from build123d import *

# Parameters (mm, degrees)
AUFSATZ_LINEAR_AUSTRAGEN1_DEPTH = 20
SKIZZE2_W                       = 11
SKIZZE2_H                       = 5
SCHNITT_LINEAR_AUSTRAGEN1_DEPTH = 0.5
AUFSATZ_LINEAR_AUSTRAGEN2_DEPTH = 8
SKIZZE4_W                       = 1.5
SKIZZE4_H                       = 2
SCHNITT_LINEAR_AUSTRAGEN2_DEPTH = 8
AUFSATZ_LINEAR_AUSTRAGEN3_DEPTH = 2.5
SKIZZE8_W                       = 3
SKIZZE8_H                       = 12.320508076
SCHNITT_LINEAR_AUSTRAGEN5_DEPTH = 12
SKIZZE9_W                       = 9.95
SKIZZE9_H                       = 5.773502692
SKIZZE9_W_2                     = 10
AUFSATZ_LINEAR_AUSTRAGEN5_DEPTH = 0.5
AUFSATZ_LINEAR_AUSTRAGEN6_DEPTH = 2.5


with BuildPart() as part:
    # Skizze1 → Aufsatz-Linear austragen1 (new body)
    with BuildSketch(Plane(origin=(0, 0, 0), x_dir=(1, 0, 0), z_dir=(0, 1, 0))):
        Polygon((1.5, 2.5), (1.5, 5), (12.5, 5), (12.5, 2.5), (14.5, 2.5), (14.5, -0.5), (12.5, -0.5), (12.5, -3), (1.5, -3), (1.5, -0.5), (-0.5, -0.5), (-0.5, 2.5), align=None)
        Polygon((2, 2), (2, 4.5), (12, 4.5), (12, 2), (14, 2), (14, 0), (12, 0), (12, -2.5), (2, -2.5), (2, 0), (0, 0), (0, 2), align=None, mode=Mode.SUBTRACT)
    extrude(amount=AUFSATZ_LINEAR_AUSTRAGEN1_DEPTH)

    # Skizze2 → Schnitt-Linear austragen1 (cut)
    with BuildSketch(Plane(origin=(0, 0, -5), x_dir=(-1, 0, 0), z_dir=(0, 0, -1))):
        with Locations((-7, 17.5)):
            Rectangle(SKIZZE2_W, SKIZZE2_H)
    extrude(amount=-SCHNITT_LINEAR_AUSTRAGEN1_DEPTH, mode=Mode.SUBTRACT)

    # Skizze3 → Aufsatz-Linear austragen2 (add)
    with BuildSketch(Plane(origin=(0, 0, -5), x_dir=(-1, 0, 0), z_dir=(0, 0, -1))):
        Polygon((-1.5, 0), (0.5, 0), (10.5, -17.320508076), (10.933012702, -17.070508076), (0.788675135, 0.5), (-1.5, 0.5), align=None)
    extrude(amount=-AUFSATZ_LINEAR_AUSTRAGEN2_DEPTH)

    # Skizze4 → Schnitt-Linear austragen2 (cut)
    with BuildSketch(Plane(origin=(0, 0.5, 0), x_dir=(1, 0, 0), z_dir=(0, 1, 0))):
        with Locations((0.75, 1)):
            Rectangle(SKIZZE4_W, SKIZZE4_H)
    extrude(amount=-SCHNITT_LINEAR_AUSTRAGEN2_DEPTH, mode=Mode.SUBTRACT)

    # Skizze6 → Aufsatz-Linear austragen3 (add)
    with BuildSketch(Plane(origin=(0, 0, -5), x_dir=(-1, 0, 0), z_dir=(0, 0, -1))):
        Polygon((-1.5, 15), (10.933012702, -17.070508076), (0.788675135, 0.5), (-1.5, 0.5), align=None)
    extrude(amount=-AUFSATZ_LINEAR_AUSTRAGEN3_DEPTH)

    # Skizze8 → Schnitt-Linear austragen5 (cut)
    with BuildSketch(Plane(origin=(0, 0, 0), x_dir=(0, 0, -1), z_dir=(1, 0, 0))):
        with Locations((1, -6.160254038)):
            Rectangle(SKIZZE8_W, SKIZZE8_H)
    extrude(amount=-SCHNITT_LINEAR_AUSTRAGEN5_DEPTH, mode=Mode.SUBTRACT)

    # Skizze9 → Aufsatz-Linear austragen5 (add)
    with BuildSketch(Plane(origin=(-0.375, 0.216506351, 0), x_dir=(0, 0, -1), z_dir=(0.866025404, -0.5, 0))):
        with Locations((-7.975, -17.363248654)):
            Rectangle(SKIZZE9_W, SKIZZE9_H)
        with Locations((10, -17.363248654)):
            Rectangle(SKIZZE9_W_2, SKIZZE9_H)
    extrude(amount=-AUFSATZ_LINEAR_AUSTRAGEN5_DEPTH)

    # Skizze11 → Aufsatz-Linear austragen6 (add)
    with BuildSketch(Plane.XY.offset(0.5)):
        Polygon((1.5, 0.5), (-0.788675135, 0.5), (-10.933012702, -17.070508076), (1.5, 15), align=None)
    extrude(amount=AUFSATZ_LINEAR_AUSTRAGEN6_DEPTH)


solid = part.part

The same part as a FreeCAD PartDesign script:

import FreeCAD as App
import Part
import Sketcher
from FreeCAD import Vector
Q = App.Units.Quantity

doc = App.newDocument("Part")
params = doc.addObject("Spreadsheet::Sheet", "Params")
for row, (alias, value) in enumerate([
    ("sketch1_width", "2 mm"),
    ("sketch1_width2", "11 mm"),
    ("sketch1_width3", "10 mm"),
    ("sketch1_height", "3 mm"),
    ("sketch1_height2", "2.5 mm"),
    ("pad1_length", "20 mm"),
    ("sketch2_width", "11 mm"),
    ("sketch2_height", "5 mm"),
    ("pocket1_length", "0.5 mm"),
    ("sketch3_width", "2 mm"),
    ("sketch3_length", "20 mm"),
    ("sketch3_height", "0.5 mm"),
    ("sketch3_length2", "0.5 mm"),
    ("pad2_length", "8 mm"),
    ("sketch4_height", "2 mm"),
    ("sketch4_width", "1.5 mm"),
    ("pocket2_length", "8 mm"),
    ("sketch5_height", "14.5 mm"),
    ("pad3_length", "2.5 mm"),
    ("sketch6_height", "3 mm"),
    ("pocket3_length", "12 mm"),
    ("sketch7_width", "10 mm"),
    ("sketch7_width2", "9.95 mm"),
    ("pad4_length", "0.5 mm"),
    ("sketch8_height", "14.5 mm"),
    ("pad5_length", "2.5 mm"),
], start=1):
    params.set(f"A{row}", alias)
    params.set(f"B{row}", "=" + value)
    params.setAlias(f"B{row}", alias)

body = doc.addObject("PartDesign::Body", "Body")

# Sketch on XZ plane
sketch1 = doc.addObject("Sketcher::SketchObject", "Sketch")
body.addObject(sketch1)
sketch1.AttachmentSupport = (doc.XZ_Plane, [""])
sketch1.MapMode = "FlatFace"
sketch1.addGeometry([
    Part.LineSegment(Vector(1.5, -5, 0), Vector(1.5, -2.5, 0)),  # 0
    Part.LineSegment(Vector(1.5, -2.5, 0), Vector(-0.5, -2.5, 0)),  # 1
    Part.LineSegment(Vector(-0.5, -2.5, 0), Vector(-0.5, 0.5, 0)),  # 2
    Part.LineSegment(Vector(-0.5, 0.5, 0), Vector(1.5, 0.5, 0)),  # 3
    Part.LineSegment(Vector(1.5, 0.5, 0), Vector(1.5, 3, 0)),  # 4
    Part.LineSegment(Vector(1.5, 3, 0), Vector(12.5, 3, 0)),  # 5
    Part.LineSegment(Vector(12.5, 3, 0), Vector(12.5, 0.5, 0)),  # 6
    Part.LineSegment(Vector(12.5, 0.5, 0), Vector(14.5, 0.5, 0)),  # 7
    Part.LineSegment(Vector(14.5, 0.5, 0), Vector(14.5, -2.5, 0)),  # 8
    Part.LineSegment(Vector(14.5, -2.5, 0), Vector(12.5, -2.5, 0)),  # 9
    Part.LineSegment(Vector(12.5, -2.5, 0), Vector(12.5, -5, 0)),  # 10
    Part.LineSegment(Vector(12.5, -5, 0), Vector(1.5, -5, 0)),  # 11
    Part.LineSegment(Vector(2, -2, 0), Vector(2, -4.5, 0)),  # 12
    Part.LineSegment(Vector(2, -4.5, 0), Vector(12, -4.5, 0)),  # 13
    Part.LineSegment(Vector(12, -4.5, 0), Vector(12, -2, 0)),  # 14
    Part.LineSegment(Vector(12, -2, 0), Vector(14, -2, 0)),  # 15
    Part.LineSegment(Vector(14, -2, 0), Vector(14, 0, 0)),  # 16
    Part.LineSegment(Vector(14, 0, 0), Vector(12, 0, 0)),  # 17
    Part.LineSegment(Vector(12, 0, 0), Vector(12, 2.5, 0)),  # 18
    Part.LineSegment(Vector(12, 2.5, 0), Vector(2, 2.5, 0)),  # 19
    Part.LineSegment(Vector(2, 2.5, 0), Vector(2, 0, 0)),  # 20
    Part.LineSegment(Vector(2, 0, 0), Vector(0, 0, 0)),  # 21
    Part.LineSegment(Vector(0, 0, 0), Vector(0, -2, 0)),  # 22
    Part.LineSegment(Vector(0, -2, 0), Vector(2, -2, 0)),  # 23
], False)
sketch1.addConstraint([
    Sketcher.Constraint("Coincident", 0, 2, 1, 1),
    Sketcher.Constraint("Coincident", 1, 2, 2, 1),
    Sketcher.Constraint("Coincident", 2, 2, 3, 1),
    Sketcher.Constraint("Coincident", 3, 2, 4, 1),
    Sketcher.Constraint("Coincident", 4, 2, 5, 1),
    Sketcher.Constraint("Coincident", 5, 2, 6, 1),
    Sketcher.Constraint("Coincident", 6, 2, 7, 1),
    Sketcher.Constraint("Coincident", 7, 2, 8, 1),
    Sketcher.Constraint("Coincident", 8, 2, 9, 1),
    Sketcher.Constraint("Coincident", 9, 2, 10, 1),
    Sketcher.Constraint("Coincident", 10, 2, 11, 1),
    Sketcher.Constraint("Coincident", 11, 2, 0, 1),
    Sketcher.Constraint("Coincident", 12, 2, 13, 1),
    Sketcher.Constraint("Coincident", 13, 2, 14, 1),
    Sketcher.Constraint("Coincident", 14, 2, 15, 1),
    Sketcher.Constraint("Coincident", 15, 2, 16, 1),
    Sketcher.Constraint("Coincident", 16, 2, 17, 1),
    Sketcher.Constraint("Coincident", 17, 2, 18, 1),
    Sketcher.Constraint("Coincident", 18, 2, 19, 1),
    Sketcher.Constraint("Coincident", 19, 2, 20, 1),
    Sketcher.Constraint("Coincident", 20, 2, 21, 1),
    Sketcher.Constraint("Coincident", 21, 2, 22, 1),
    Sketcher.Constraint("Coincident", 22, 2, 23, 1),
    Sketcher.Constraint("Coincident", 23, 2, 12, 1),
    Sketcher.Constraint("Vertical", 0),
    Sketcher.Constraint("Horizontal", 1),
    Sketcher.Constraint("Vertical", 2),
    Sketcher.Constraint("Horizontal", 3),
    Sketcher.Constraint("Vertical", 4),
    Sketcher.Constraint("Horizontal", 5),
    Sketcher.Constraint("Vertical", 6),
    Sketcher.Constraint("Horizontal", 7),
    Sketcher.Constraint("Vertical", 8),
    Sketcher.Constraint("Horizontal", 9),
    Sketcher.Constraint("Vertical", 10),
    Sketcher.Constraint("Horizontal", 11),
    Sketcher.Constraint("Vertical", 12),
    Sketcher.Constraint("Horizontal", 13),
    Sketcher.Constraint("Vertical", 14),
    Sketcher.Constraint("Horizontal", 15),
    Sketcher.Constraint("Vertical", 16),
    Sketcher.Constraint("Horizontal", 17),
    Sketcher.Constraint("Vertical", 18),
    Sketcher.Constraint("Horizontal", 19),
    Sketcher.Constraint("Vertical", 20),
    Sketcher.Constraint("Horizontal", 21),
    Sketcher.Constraint("Vertical", 22),
    Sketcher.Constraint("Horizontal", 23),
    Sketcher.Constraint("Coincident", 21, 2, -1, 1),
    Sketcher.Constraint("PointOnObject", 16, 2, -1),
    Sketcher.Constraint("Horizontal", 3, 2, 6, 2),
    Sketcher.Constraint("Horizontal", 1, 2, 8, 2),
    Sketcher.Constraint("Horizontal", 15, 2, 22, 2),
    Sketcher.Constraint("Vertical", 0, 2, 3, 2),
    Sketcher.Constraint("Vertical", 6, 2, 9, 2),
    Sketcher.Constraint("Vertical", 14, 2, 17, 2),
    Sketcher.Constraint("Vertical", 12, 2, 19, 2),
    Sketcher.Constraint("Equal", 3, 7),
    Sketcher.Constraint("Equal", 9, 15),
    Sketcher.Constraint("Equal", 17, 21),
    Sketcher.Constraint("Equal", 0, 4),
    Sketcher.Constraint("Equal", 10, 12),
    Sketcher.Constraint("Equal", 23, 16),
    Sketcher.Constraint("Equal", 14, 18),
    Sketcher.Constraint("DistanceX", 1, 2, 1, 1, Q("2 mm")),
    Sketcher.Constraint("DistanceX", 5, 1, 5, 2, Q("11 mm")),
    Sketcher.Constraint("DistanceX", 13, 1, 13, 2, Q("10 mm")),
    Sketcher.Constraint("DistanceY", 2, 1, 2, 2, Q("3 mm")),
    Sketcher.Constraint("DistanceY", 0, 1, 0, 2, Q("2.5 mm")),
    Sketcher.Constraint("DistanceY", -1, 1, 4, 2, Q("3 mm")),
    Sketcher.Constraint("DistanceX", -1, 1, 0, 2, Q("1.5 mm")),
])
sketch1.setExpression("Constraints[64]", "Params.sketch1_width")
sketch1.setExpression("Constraints[65]", "Params.sketch1_width2")
sketch1.setExpression("Constraints[66]", "Params.sketch1_width3")
sketch1.setExpression("Constraints[67]", "Params.sketch1_height")
sketch1.setExpression("Constraints[68]", "Params.sketch1_height2")
pad1 = doc.addObject("PartDesign::Pad", "Pad")
body.addObject(pad1)
pad1.Profile = sketch1
pad1.setExpression("Length", "Params.pad1_length")
pad1.Reversed = True

# Sketch on XY plane
sketch2 = doc.addObject("Sketcher::SketchObject", "Sketch001")
body.addObject(sketch2)
sketch2.AttachmentSupport = (doc.XY_Plane, [""])
sketch2.MapMode = "FlatFace"
sketch2.AttachmentOffset = App.Placement(Vector(0, 0, -5), App.Rotation())
sketch2.addGeometry([
    Part.LineSegment(Vector(12, 20, 0), Vector(12, 15, 0)),
    Part.LineSegment(Vector(12, 15, 0), Vector(2, 15, 0)),
    Part.LineSegment(Vector(2, 15, 0), Vector(2, 20, 0)),
    Part.LineSegment(Vector(2, 20, 0), Vector(12, 20, 0)),
], False)
sketch2.addConstraint([
    Sketcher.Constraint("Coincident", 0, 2, 1, 1),
    Sketcher.Constraint("Coincident", 1, 2, 2, 1),
    Sketcher.Constraint("Coincident", 2, 2, 3, 1),
    Sketcher.Constraint("Coincident", 3, 2, 0, 1),
    Sketcher.Constraint("Vertical", 0),
    Sketcher.Constraint("Horizontal", 1),
    Sketcher.Constraint("Vertical", 2),
    Sketcher.Constraint("Horizontal", 3),
    Sketcher.Constraint("DistanceX", 1, 2, 1, 1, Q("11 mm")),
    Sketcher.Constraint("DistanceY", 0, 2, 0, 1, Q("5 mm")),
    Sketcher.Constraint("DistanceY", -1, 1, 0, 2, Q("15 mm")),
    Sketcher.Constraint("DistanceX", -1, 1, 0, 2, Q("12.5 mm")),
])
sketch2.setExpression("Constraints[8]", "Params.sketch2_width")
sketch2.setExpression("Constraints[9]", "Params.sketch2_height")
pocket1 = doc.addObject("PartDesign::Pocket", "Pocket")
body.addObject(pocket1)
pocket1.Profile = sketch2
pocket1.setExpression("Length", "Params.pocket1_length")
pocket1.Reversed = True

# Sketch on XY plane
sketch3 = doc.addObject("Sketcher::SketchObject", "Sketch002")
body.addObject(sketch3)
sketch3.AttachmentSupport = (doc.XY_Plane, [""])
sketch3.MapMode = "FlatFace"
sketch3.AttachmentOffset = App.Placement(Vector(0, 0, -5), App.Rotation())
sketch3.addGeometry([
    Part.LineSegment(Vector(1.5, 0, 0), Vector(-0.5, 0, 0)),  # 0
    Part.LineSegment(Vector(-0.5, 0, 0), Vector(-10.5, -17.3, 0)),  # 1
    Part.LineSegment(Vector(-10.5, -17.3, 0), Vector(-10.9, -17.1, 0)),  # 2
    Part.LineSegment(Vector(-10.9, -17.1, 0), Vector(-0.8, 0.5, 0)),  # 3
    Part.LineSegment(Vector(-0.8, 0.5, 0), Vector(1.5, 0.5, 0)),  # 4
    Part.LineSegment(Vector(1.5, 0.5, 0), Vector(1.5, 0, 0)),  # 5
], False)
sketch3.addConstraint([
    Sketcher.Constraint("Coincident", 0, 2, 1, 1),
    Sketcher.Constraint("Coincident", 1, 2, 2, 1),
    Sketcher.Constraint("Coincident", 2, 2, 3, 1),
    Sketcher.Constraint("Coincident", 3, 2, 4, 1),
    Sketcher.Constraint("Coincident", 4, 2, 5, 1),
    Sketcher.Constraint("Coincident", 5, 2, 0, 1),
    Sketcher.Constraint("Horizontal", 0),
    Sketcher.Constraint("Horizontal", 4),
    Sketcher.Constraint("Vertical", 5),
    Sketcher.Constraint("PointOnObject", 0, 2, -1),
    Sketcher.Constraint("Perpendicular", 1, 2),
    Sketcher.Constraint("Perpendicular", 2, 3),
    Sketcher.Constraint("DistanceX", 0, 2, 0, 1, Q("2 mm")),
    Sketcher.Constraint("Angle", 1, Q("-120 deg")),
    Sketcher.Constraint("Distance", 1, Q("20 mm")),
    Sketcher.Constraint("DistanceY", 5, 2, 5, 1, Q("0.5 mm")),
    Sketcher.Constraint("Distance", 2, Q("0.5 mm")),
    Sketcher.Constraint("DistanceX", 0, 2, -1, 1, Q("0.5 mm")),
])
sketch3.setExpression("Constraints[12]", "Params.sketch3_width")
sketch3.setExpression("Constraints[14]", "Params.sketch3_length")
sketch3.setExpression("Constraints[15]", "Params.sketch3_height")
sketch3.setExpression("Constraints[16]", "Params.sketch3_length2")
pad2 = doc.addObject("PartDesign::Pad", "Pad001")
body.addObject(pad2)
pad2.Profile = sketch3
pad2.setExpression("Length", "Params.pad2_length")

# Sketch on XZ plane
sketch4 = doc.addObject("Sketcher::SketchObject", "Sketch003")
body.addObject(sketch4)
sketch4.AttachmentSupport = (doc.XZ_Plane, [""])
sketch4.MapMode = "FlatFace"
sketch4.AttachmentOffset = App.Placement(Vector(0, 0, -0.5), App.Rotation())
sketch4.addGeometry([
    Part.LineSegment(Vector(0, -2, 0), Vector(0, 0, 0)),
    Part.LineSegment(Vector(0, 0, 0), Vector(1.5, 0, 0)),
    Part.LineSegment(Vector(1.5, 0, 0), Vector(1.5, -2, 0)),
    Part.LineSegment(Vector(1.5, -2, 0), Vector(0, -2, 0)),
], False)
sketch4.addConstraint([
    Sketcher.Constraint("Coincident", 0, 2, 1, 1),
    Sketcher.Constraint("Coincident", 1, 2, 2, 1),
    Sketcher.Constraint("Coincident", 2, 2, 3, 1),
    Sketcher.Constraint("Coincident", 3, 2, 0, 1),
    Sketcher.Constraint("Vertical", 0),
    Sketcher.Constraint("Horizontal", 1),
    Sketcher.Constraint("Vertical", 2),
    Sketcher.Constraint("Horizontal", 3),
    Sketcher.Constraint("Coincident", 0, 2, -1, 1),
    Sketcher.Constraint("DistanceY", 0, 1, 0, 2, Q("2 mm")),
    Sketcher.Constraint("DistanceX", 1, 1, 1, 2, Q("1.5 mm")),
])
sketch4.setExpression("Constraints[9]", "Params.sketch4_height")
sketch4.setExpression("Constraints[10]", "Params.sketch4_width")
pocket2 = doc.addObject("PartDesign::Pocket", "Pocket001")
body.addObject(pocket2)
pocket2.Profile = sketch4
pocket2.setExpression("Length", "Params.pocket2_length")
pocket2.Reversed = True

# Sketch on XY plane
sketch5 = doc.addObject("Sketcher::SketchObject", "Sketch004")
body.addObject(sketch5)
sketch5.AttachmentSupport = (doc.XY_Plane, [""])
sketch5.MapMode = "FlatFace"
sketch5.AttachmentOffset = App.Placement(Vector(0, 0, -5), App.Rotation())
sketch5.addGeometry([
    Part.LineSegment(Vector(-10.9, -17.1, 0), Vector(1.5, 15, 0)),
    Part.LineSegment(Vector(1.5, 15, 0), Vector(1.5, 0.5, 0)),
    Part.LineSegment(Vector(1.5, 0.5, 0), Vector(-0.8, 0.5, 0)),
    Part.LineSegment(Vector(-0.8, 0.5, 0), Vector(-10.9, -17.1, 0)),
], False)
sketch5.addConstraint([
    Sketcher.Constraint("Coincident", 0, 2, 1, 1),
    Sketcher.Constraint("Coincident", 1, 2, 2, 1),
    Sketcher.Constraint("Coincident", 2, 2, 3, 1),
    Sketcher.Constraint("Coincident", 3, 2, 0, 1),
    Sketcher.Constraint("Vertical", 1),
    Sketcher.Constraint("Horizontal", 2),
    Sketcher.Constraint("Angle", 3, Q("-120 deg")),
    Sketcher.Constraint("DistanceY", 1, 2, 1, 1, Q("14.5 mm")),
    Sketcher.Constraint("DistanceY", -1, 1, 0, 2, Q("15 mm")),
    Sketcher.Constraint("DistanceX", -1, 1, 0, 2, Q("1.5 mm")),
    Sketcher.Constraint("Distance", 0, Q("34.396181 mm")),
    Sketcher.Constraint("DistanceX", 2, 2, 2, 1, Q("2.288675 mm")),
])
sketch5.setExpression("Constraints[7]", "Params.sketch5_height")
pad3 = doc.addObject("PartDesign::Pad", "Pad002")
body.addObject(pad3)
pad3.Profile = sketch5
pad3.setExpression("Length", "Params.pad3_length")

# Sketch on YZ plane
sketch6 = doc.addObject("Sketcher::SketchObject", "Sketch005")
body.addObject(sketch6)
sketch6.AttachmentSupport = (doc.YZ_Plane, [""])
sketch6.MapMode = "FlatFace"
sketch6.addGeometry([
    Part.LineSegment(Vector(0, 0.5, 0), Vector(-12.3, 0.5, 0)),
    Part.LineSegment(Vector(-12.3, 0.5, 0), Vector(-12.3, -2.5, 0)),
    Part.LineSegment(Vector(-12.3, -2.5, 0), Vector(0, -2.5, 0)),
    Part.LineSegment(Vector(0, -2.5, 0), Vector(0, 0.5, 0)),
], False)
sketch6.addConstraint([
    Sketcher.Constraint("Coincident", 0, 2, 1, 1),
    Sketcher.Constraint("Coincident", 1, 2, 2, 1),
    Sketcher.Constraint("Coincident", 2, 2, 3, 1),
    Sketcher.Constraint("Coincident", 3, 2, 0, 1),
    Sketcher.Constraint("Horizontal", 0),
    Sketcher.Constraint("Vertical", 1),
    Sketcher.Constraint("Horizontal", 2),
    Sketcher.Constraint("Vertical", 3),
    Sketcher.Constraint("PointOnObject", 2, 2, -2),
    Sketcher.Constraint("DistanceY", 1, 2, 1, 1, Q("3 mm")),
    Sketcher.Constraint("DistanceY", -1, 1, 0, 2, Q("0.5 mm")),
    Sketcher.Constraint("DistanceX", 0, 2, 0, 1, Q("12.320508 mm")),
])
sketch6.setExpression("Constraints[9]", "Params.sketch6_height")
pocket3 = doc.addObject("PartDesign::Pocket", "Pocket002")
body.addObject(pocket3)
pocket3.Profile = sketch6
pocket3.setExpression("Length", "Params.pocket3_length")

# Sketch on an angled plane
sketch7 = doc.addObject("Sketcher::SketchObject", "Sketch006")
body.addObject(sketch7)
sketch7.Placement = App.Placement(Vector(-0.375, 0.216506, 0), App.Rotation(Vector(0, 0, -1), Vector(0.5, 0.866025404, 0), Vector(0.866025404, -0.5, 0), "ZXY"))
sketch7.addGeometry([
    Part.LineSegment(Vector(-13, -14, 0), Vector(-13, -20, 0)),  # 0
    Part.LineSegment(Vector(-13, -20, 0), Vector(-3, -20, 0)),  # 1
    Part.LineSegment(Vector(-3, -20, 0), Vector(-3, -14, 0)),  # 2
    Part.LineSegment(Vector(-3, -14, 0), Vector(-13, -14, 0)),  # 3
    Part.LineSegment(Vector(5, -14, 0), Vector(5, -20, 0)),  # 4
    Part.LineSegment(Vector(5, -20, 0), Vector(15, -20, 0)),  # 5
    Part.LineSegment(Vector(15, -20, 0), Vector(15, -14, 0)),  # 6
    Part.LineSegment(Vector(15, -14, 0), Vector(5, -14, 0)),  # 7
], False)
sketch7.addConstraint([
    Sketcher.Constraint("Coincident", 0, 2, 1, 1),
    Sketcher.Constraint("Coincident", 1, 2, 2, 1),
    Sketcher.Constraint("Coincident", 2, 2, 3, 1),
    Sketcher.Constraint("Coincident", 3, 2, 0, 1),
    Sketcher.Constraint("Coincident", 4, 2, 5, 1),
    Sketcher.Constraint("Coincident", 5, 2, 6, 1),
    Sketcher.Constraint("Coincident", 6, 2, 7, 1),
    Sketcher.Constraint("Coincident", 7, 2, 4, 1),
    Sketcher.Constraint("Vertical", 0),
    Sketcher.Constraint("Horizontal", 1),
    Sketcher.Constraint("Vertical", 2),
    Sketcher.Constraint("Horizontal", 3),
    Sketcher.Constraint("Vertical", 4),
    Sketcher.Constraint("Horizontal", 5),
    Sketcher.Constraint("Vertical", 6),
    Sketcher.Constraint("Horizontal", 7),
    Sketcher.Constraint("Horizontal", 1, 2, 4, 2),
    Sketcher.Constraint("Horizontal", 3, 2, 6, 2),
    Sketcher.Constraint("DistanceX", 5, 1, 5, 2, Q("10 mm")),
    Sketcher.Constraint("DistanceX", 1, 2, -1, 1, Q("3 mm")),
    Sketcher.Constraint("DistanceX", -1, 1, 4, 2, Q("5 mm")),
    Sketcher.Constraint("DistanceX", 1, 1, 1, 2, Q("9.95 mm")),
    Sketcher.Constraint("DistanceY", 0, 2, -1, 1, Q("20.25 mm")),
    Sketcher.Constraint("DistanceY", 0, 2, 0, 1, Q("5.773503 mm")),
])
sketch7.setExpression("Constraints[18]", "Params.sketch7_width")
sketch7.setExpression("Constraints[21]", "Params.sketch7_width2")
pad4 = doc.addObject("PartDesign::Pad", "Pad003")
body.addObject(pad4)
pad4.Profile = sketch7
pad4.setExpression("Length", "Params.pad4_length")
pad4.Reversed = True

# Sketch on XY plane
sketch8 = doc.addObject("Sketcher::SketchObject", "Sketch007")
body.addObject(sketch8)
sketch8.AttachmentSupport = (doc.XY_Plane, [""])
sketch8.MapMode = "FlatFace"
sketch8.AttachmentOffset = App.Placement(Vector(0, 0, 0.5), App.Rotation())
sketch8.addGeometry([
    Part.LineSegment(Vector(-0.8, 0.5, 0), Vector(1.5, 0.5, 0)),
    Part.LineSegment(Vector(1.5, 0.5, 0), Vector(1.5, 15, 0)),
    Part.LineSegment(Vector(1.5, 15, 0), Vector(-10.9, -17.1, 0)),
    Part.LineSegment(Vector(-10.9, -17.1, 0), Vector(-0.8, 0.5, 0)),
], False)
sketch8.addConstraint([
    Sketcher.Constraint("Coincident", 0, 2, 1, 1),
    Sketcher.Constraint("Coincident", 1, 2, 2, 1),
    Sketcher.Constraint("Coincident", 2, 2, 3, 1),
    Sketcher.Constraint("Coincident", 3, 2, 0, 1),
    Sketcher.Constraint("Horizontal", 0),
    Sketcher.Constraint("Vertical", 1),
    Sketcher.Constraint("Angle", 3, Q("60 deg")),
    Sketcher.Constraint("DistanceY", 1, 1, 1, 2, Q("14.5 mm")),
    Sketcher.Constraint("DistanceY", -1, 1, 1, 2, Q("15 mm")),
    Sketcher.Constraint("DistanceX", -1, 1, 0, 2, Q("1.5 mm")),
    Sketcher.Constraint("Distance", 2, Q("34.396181 mm")),
    Sketcher.Constraint("DistanceX", 0, 1, 0, 2, Q("2.288675 mm")),
])
sketch8.setExpression("Constraints[7]", "Params.sketch8_height")
pad5 = doc.addObject("PartDesign::Pad", "Pad004")
body.addObject(pad5)
pad5.Profile = sketch8
pad5.setExpression("Length", "Params.pad5_length")

doc.recompute()
